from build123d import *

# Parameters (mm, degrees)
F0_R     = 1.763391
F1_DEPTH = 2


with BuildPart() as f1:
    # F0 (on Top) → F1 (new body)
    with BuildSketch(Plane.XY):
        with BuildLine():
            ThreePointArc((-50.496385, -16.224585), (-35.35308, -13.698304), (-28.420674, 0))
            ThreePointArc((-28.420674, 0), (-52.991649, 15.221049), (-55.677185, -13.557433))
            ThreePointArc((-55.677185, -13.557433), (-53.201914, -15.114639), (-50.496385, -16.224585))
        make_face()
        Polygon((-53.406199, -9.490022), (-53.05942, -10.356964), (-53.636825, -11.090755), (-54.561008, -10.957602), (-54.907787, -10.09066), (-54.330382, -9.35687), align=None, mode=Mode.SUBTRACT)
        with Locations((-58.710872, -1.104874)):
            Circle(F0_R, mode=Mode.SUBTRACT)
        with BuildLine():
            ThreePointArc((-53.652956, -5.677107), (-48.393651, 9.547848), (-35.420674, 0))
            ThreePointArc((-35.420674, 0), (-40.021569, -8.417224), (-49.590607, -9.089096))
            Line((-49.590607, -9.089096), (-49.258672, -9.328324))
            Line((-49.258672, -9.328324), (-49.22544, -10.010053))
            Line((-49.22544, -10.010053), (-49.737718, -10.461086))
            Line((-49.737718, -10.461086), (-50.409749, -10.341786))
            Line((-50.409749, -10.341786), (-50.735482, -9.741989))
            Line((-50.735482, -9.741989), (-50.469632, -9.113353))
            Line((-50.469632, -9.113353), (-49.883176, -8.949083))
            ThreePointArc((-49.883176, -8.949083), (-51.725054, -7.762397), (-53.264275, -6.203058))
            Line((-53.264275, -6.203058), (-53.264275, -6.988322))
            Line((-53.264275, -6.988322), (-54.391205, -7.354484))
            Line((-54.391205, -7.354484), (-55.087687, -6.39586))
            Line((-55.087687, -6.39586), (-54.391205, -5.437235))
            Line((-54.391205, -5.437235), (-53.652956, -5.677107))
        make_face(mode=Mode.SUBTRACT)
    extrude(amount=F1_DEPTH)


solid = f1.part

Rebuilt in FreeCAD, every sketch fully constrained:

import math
import FreeCAD as App
import Part
import Sketcher

V = App.Vector
Q = App.Units.Quantity

doc = App.newDocument("Part")
body = doc.addObject("PartDesign::Body", "Body")

# Sketch on XY plane
sketch1 = doc.addObject("Sketcher::SketchObject", "Sketch")
body.addObject(sketch1)
sketch1.AttachmentSupport = (doc.XY_Plane, [""])
sketch1.MapMode = "FlatFace"
sketch1.addGeometry(Part.ArcOfCircle(Part.Circle(V(-45.42, 0, 0), V(0, 0, 1), 17), math.radians(-107), math.radians(0)), False)
sketch1.addGeometry(Part.ArcOfCircle(Part.Circle(V(-45.42, 0, 0), V(0, 0, 1), 17), math.radians(0), math.radians(233)), False)
sketch1.addGeometry(Part.ArcOfCircle(Part.Circle(V(-45.42, 0, 0), V(0, 0, 1), 17), math.radians(-127.11), math.radians(-107.37)), False)
sketch1.addGeometry(Part.LineSegment(V(-54.33, -9.36, 0), V(-53.41, -9.49, 0)), False)
sketch1.addGeometry(Part.LineSegment(V(-53.41, -9.49, 0), V(-53.06, -10.36, 0)), False)
sketch1.addGeometry(Part.LineSegment(V(-53.06, -10.36, 0), V(-53.64, -11.09, 0)), False)
sketch1.addGeometry(Part.LineSegment(V(-53.64, -11.09, 0), V(-54.56, -10.96, 0)), False)
sketch1.addGeometry(Part.LineSegment(V(-54.56, -10.96, 0), V(-54.91, -10.09, 0)), False)
sketch1.addGeometry(Part.LineSegment(V(-54.91, -10.09, 0), V(-54.33, -9.36, 0)), False)
sketch1.addGeometry(Part.Circle(V(-58.71, -1.1, 0), V(0, 0, 1), 1.76), False)
sketch1.addGeometry(Part.LineSegment(V(-54.39, -5.44, 0), V(-53.65, -5.68, 0)), False)
sketch1.addGeometry(Part.ArcOfCircle(Part.Circle(V(-45.42, 0, 0), V(0, 0, 1), 10), math.radians(0), math.radians(215)), False)
sketch1.addGeometry(Part.ArcOfCircle(Part.Circle(V(-45.42, 0, 0), V(0, 0, 1), 10), math.radians(-115), math.radians(0)), False)
sketch1.addGeometry(Part.LineSegment(V(-49.59, -9.09, 0), V(-49.26, -9.33, 0)), False)
sketch1.addGeometry(Part.LineSegment(V(-49.26, -9.33, 0), V(-49.23, -10.01, 0)), False)
sketch1.addGeometry(Part.LineSegment(V(-49.23, -10.01, 0), V(-49.74, -10.46, 0)), False)
sketch1.addGeometry(Part.LineSegment(V(-49.74, -10.46, 0), V(-50.41, -10.34, 0)), False)
sketch1.addGeometry(Part.LineSegment(V(-50.41, -10.34, 0), V(-50.74, -9.74, 0)), False)
sketch1.addGeometry(Part.LineSegment(V(-50.74, -9.74, 0), V(-50.47, -9.11, 0)), False)
sketch1.addGeometry(Part.LineSegment(V(-50.47, -9.11, 0), V(-49.88, -8.95, 0)), False)
sketch1.addGeometry(Part.ArcOfCircle(Part.Circle(V(-45.42, 0, 0), V(0, 0, 1), 10), math.radians(-142), math.radians(-117)), False)
sketch1.addGeometry(Part.LineSegment(V(-53.26, -6.2, 0), V(-53.26, -6.99, 0)), False)
sketch1.addGeometry(Part.LineSegment(V(-53.26, -6.99, 0), V(-54.39, -7.35, 0)), False)
sketch1.addGeometry(Part.LineSegment(V(-54.39, -7.35, 0), V(-55.09, -6.4, 0)), False)
sketch1.addGeometry(Part.LineSegment(V(-55.09, -6.4, 0), V(-54.39, -5.44, 0)), False)
sketch1.addConstraint(Sketcher.Constraint("Tangent", 0, 2, 1, 1))
sketch1.addConstraint(Sketcher.Constraint("Tangent", 1, 2, 2, 1))
sketch1.addConstraint(Sketcher.Constraint("Tangent", 2, 2, 0, 1))
sketch1.addConstraint(Sketcher.Constraint("Coincident", 3, 2, 4, 1))
sketch1.addConstraint(Sketcher.Constraint("Coincident", 4, 2, 5, 1))
sketch1.addConstraint(Sketcher.Constraint("Coincident", 5, 2, 6, 1))
sketch1.addConstraint(Sketcher.Constraint("Coincident", 6, 2, 7, 1))
sketch1.addConstraint(Sketcher.Constraint("Coincident", 7, 2, 8, 1))
sketch1.addConstraint(Sketcher.Constraint("Coincident", 8, 2, 3, 1))
sketch1.addConstraint(Sketcher.Constraint("Coincident", 10, 2, 11, 2))
sketch1.addConstraint(Sketcher.Constraint("Tangent", 11, 1, 12, 2))
sketch1.addConstraint(Sketcher.Constraint("Coincident", 12, 1, 13, 1))
sketch1.addConstraint(Sketcher.Constraint("Coincident", 13, 2, 14, 1))
sketch1.addConstraint(Sketcher.Constraint("Coincident", 14, 2, 15, 1))
sketch1.addConstraint(Sketcher.Constraint("Coincident", 15, 2, 16, 1))
sketch1.addConstraint(Sketcher.Constraint("Coincident", 16, 2, 17, 1))
sketch1.addConstraint(Sketcher.Constraint("Coincident", 17, 2, 18, 1))
sketch1.addConstraint(Sketcher.Constraint("Coincident", 18, 2, 19, 1))
sketch1.addConstraint(Sketcher.Constraint("Coincident", 19, 2, 20, 2))
sketch1.addConstraint(Sketcher.Constraint("Coincident", 20, 1, 21, 1))
sketch1.addConstraint(Sketcher.Constraint("Coincident", 21, 2, 22, 1))
sketch1.addConstraint(Sketcher.Constraint("Coincident", 22, 2, 23, 1))
sketch1.addConstraint(Sketcher.Constraint("Coincident", 23, 2, 24, 1))
sketch1.addConstraint(Sketcher.Constraint("Coincident", 24, 2, 10, 1))
sketch1.addConstraint(Sketcher.Constraint("Vertical", 21))
sketch1.addConstraint(Sketcher.Constraint("Coincident", 11, 3, 0, 3))
sketch1.addConstraint(Sketcher.Constraint("Coincident", 20, 3, 2, 3))
sketch1.addConstraint(Sketcher.Constraint("Equal", 11, 12))
sketch1.addConstraint(Sketcher.Constraint("PointOnObject", 0, 3, -1))
sketch1.addConstraint(Sketcher.Constraint("PointOnObject", 0, 2, -1))
sketch1.addConstraint(Sketcher.Constraint("PointOnObject", 11, 1, -1))
sketch1.addConstraint(Sketcher.Constraint("Parallel", 3, 6))
sketch1.addConstraint(Sketcher.Constraint("Parallel", 4, 7))
sketch1.addConstraint(Sketcher.Constraint("Parallel", 5, 8))
sketch1.addConstraint(Sketcher.Constraint("Vertical", 22, 2, 24, 2))
sketch1.addConstraint(Sketcher.Constraint("Equal", 3, 4))
sketch1.addConstraint(Sketcher.Constraint("Equal", 4, 5))
sketch1.addConstraint(Sketcher.Constraint("Equal", 5, 6))
sketch1.addConstraint(Sketcher.Constraint("Equal", 14, 15))
sketch1.addConstraint(Sketcher.Constraint("Equal", 15, 16))
sketch1.addConstraint(Sketcher.Constraint("Equal", 16, 17))
sketch1.addConstraint(Sketcher.Constraint("Equal", 17, 18))
sketch1.addConstraint(Sketcher.Constraint("Equal", 22, 23))
sketch1.addConstraint(Sketcher.Constraint("Equal", 23, 24))
sketch1.addConstraint(Sketcher.Constraint("Radius", 0, Q("17.000001 mm")))
sketch1.addConstraint(Sketcher.Constraint("Radius", 11, Q("10 mm")))
sketch1.addConstraint(Sketcher.Constraint("Angle", 22, Q("-161.999989 deg")))
sketch1.addConstraint(Sketcher.Constraint("Angle", 24, Q("53.999993 deg")))
sketch1.addConstraint(Sketcher.Constraint("Diameter", 9, Q("3.526782 mm")))
sketch1.addConstraint(Sketcher.Constraint("Radius", 20, Q("9.999987 mm")))
sketch1.addConstraint(Sketcher.Constraint("DistanceX", 3, 2, -1, 1, Q("53.406199 mm")))
sketch1.addConstraint(Sketcher.Constraint("DistanceX", 1, 2, 2, 2, Q("5.1808 mm")))
sketch1.addConstraint(Sketcher.Constraint("DistanceY", 15, 2, 16, 2, Q("0.1193 mm")))
sketch1.addConstraint(Sketcher.Constraint("DistanceY", 3, 2, 21, 2, Q("2.5017 mm")))
sketch1.addConstraint(Sketcher.Constraint("DistanceY", 23, 2, 20, 1, Q("0.192802 mm")))
sketch1.addConstraint(Sketcher.Constraint("Distance", 10, Q("0.776241 mm")))
sketch1.addConstraint(Sketcher.Constraint("Distance", 13, Q("0.409159 mm")))
sketch1.addConstraint(Sketcher.Constraint("Distance", 14, Q("0.682538 mm")))
sketch1.addConstraint(Sketcher.Constraint("Distance", 19, Q("0.609028 mm")))
sketch1.addConstraint(Sketcher.Constraint("DistanceY", 21, 2, 21, 1, Q("0.785264 mm")))
sketch1.addConstraint(Sketcher.Constraint("DistanceX", 2, 3, -1, 1, Q("45.420678 mm")))
sketch1.addConstraint(Sketcher.Constraint("DistanceX", 4, 2, -1, 1, Q("53.05942 mm")))
sketch1.addConstraint(Sketcher.Constraint("DistanceY", 7, 2, -1, 1, Q("10.09066 mm")))
sketch1.addConstraint(Sketcher.Constraint("DistanceY", 8, 2, -1, 1, Q("9.35687 mm")))
sketch1.addConstraint(Sketcher.Constraint("DistanceX", 13, 2, -1, 1, Q("49.258672 mm")))
sketch1.addConstraint(Sketcher.Constraint("DistanceX", 14, 2, -1, 1, Q("49.22544 mm")))
sketch1.addConstraint(Sketcher.Constraint("DistanceX", 16, 2, -1, 1, Q("50.409749 mm")))
sketch1.addConstraint(Sketcher.Constraint("DistanceX", 17, 2, -1, 1, Q("50.735482 mm")))
sketch1.addConstraint(Sketcher.Constraint("DistanceY", 17, 2, -1, 1, Q("9.741989 mm")))
sketch1.addConstraint(Sketcher.Constraint("DistanceX", 18, 2, -1, 1, Q("50.469632 mm")))
sketch1.addConstraint(Sketcher.Constraint("DistanceY", 20, 1, -1, 1, Q("6.203058 mm")))
sketch1.addConstraint(Sketcher.Constraint("DistanceY", 1, 2, 9, 3, Q("12.452559 mm")))
sketch1.addConstraint(Sketcher.Constraint("DistanceX", 1, 2, 11, 3, Q("10.256511 mm")))
sketch1.addConstraint(Sketcher.Constraint("DistanceY", 4, 2, 3, 2, Q("0.866942 mm")))
sketch1.addConstraint(Sketcher.Constraint("DistanceX", 9, 3, 4, 2, Q("5.651452 mm")))
pad1 = doc.addObject("PartDesign::Pad", "Pad")
body.addObject(pad1)
pad1.Profile = sketch1
pad1.Length = 2

doc.recompute()
